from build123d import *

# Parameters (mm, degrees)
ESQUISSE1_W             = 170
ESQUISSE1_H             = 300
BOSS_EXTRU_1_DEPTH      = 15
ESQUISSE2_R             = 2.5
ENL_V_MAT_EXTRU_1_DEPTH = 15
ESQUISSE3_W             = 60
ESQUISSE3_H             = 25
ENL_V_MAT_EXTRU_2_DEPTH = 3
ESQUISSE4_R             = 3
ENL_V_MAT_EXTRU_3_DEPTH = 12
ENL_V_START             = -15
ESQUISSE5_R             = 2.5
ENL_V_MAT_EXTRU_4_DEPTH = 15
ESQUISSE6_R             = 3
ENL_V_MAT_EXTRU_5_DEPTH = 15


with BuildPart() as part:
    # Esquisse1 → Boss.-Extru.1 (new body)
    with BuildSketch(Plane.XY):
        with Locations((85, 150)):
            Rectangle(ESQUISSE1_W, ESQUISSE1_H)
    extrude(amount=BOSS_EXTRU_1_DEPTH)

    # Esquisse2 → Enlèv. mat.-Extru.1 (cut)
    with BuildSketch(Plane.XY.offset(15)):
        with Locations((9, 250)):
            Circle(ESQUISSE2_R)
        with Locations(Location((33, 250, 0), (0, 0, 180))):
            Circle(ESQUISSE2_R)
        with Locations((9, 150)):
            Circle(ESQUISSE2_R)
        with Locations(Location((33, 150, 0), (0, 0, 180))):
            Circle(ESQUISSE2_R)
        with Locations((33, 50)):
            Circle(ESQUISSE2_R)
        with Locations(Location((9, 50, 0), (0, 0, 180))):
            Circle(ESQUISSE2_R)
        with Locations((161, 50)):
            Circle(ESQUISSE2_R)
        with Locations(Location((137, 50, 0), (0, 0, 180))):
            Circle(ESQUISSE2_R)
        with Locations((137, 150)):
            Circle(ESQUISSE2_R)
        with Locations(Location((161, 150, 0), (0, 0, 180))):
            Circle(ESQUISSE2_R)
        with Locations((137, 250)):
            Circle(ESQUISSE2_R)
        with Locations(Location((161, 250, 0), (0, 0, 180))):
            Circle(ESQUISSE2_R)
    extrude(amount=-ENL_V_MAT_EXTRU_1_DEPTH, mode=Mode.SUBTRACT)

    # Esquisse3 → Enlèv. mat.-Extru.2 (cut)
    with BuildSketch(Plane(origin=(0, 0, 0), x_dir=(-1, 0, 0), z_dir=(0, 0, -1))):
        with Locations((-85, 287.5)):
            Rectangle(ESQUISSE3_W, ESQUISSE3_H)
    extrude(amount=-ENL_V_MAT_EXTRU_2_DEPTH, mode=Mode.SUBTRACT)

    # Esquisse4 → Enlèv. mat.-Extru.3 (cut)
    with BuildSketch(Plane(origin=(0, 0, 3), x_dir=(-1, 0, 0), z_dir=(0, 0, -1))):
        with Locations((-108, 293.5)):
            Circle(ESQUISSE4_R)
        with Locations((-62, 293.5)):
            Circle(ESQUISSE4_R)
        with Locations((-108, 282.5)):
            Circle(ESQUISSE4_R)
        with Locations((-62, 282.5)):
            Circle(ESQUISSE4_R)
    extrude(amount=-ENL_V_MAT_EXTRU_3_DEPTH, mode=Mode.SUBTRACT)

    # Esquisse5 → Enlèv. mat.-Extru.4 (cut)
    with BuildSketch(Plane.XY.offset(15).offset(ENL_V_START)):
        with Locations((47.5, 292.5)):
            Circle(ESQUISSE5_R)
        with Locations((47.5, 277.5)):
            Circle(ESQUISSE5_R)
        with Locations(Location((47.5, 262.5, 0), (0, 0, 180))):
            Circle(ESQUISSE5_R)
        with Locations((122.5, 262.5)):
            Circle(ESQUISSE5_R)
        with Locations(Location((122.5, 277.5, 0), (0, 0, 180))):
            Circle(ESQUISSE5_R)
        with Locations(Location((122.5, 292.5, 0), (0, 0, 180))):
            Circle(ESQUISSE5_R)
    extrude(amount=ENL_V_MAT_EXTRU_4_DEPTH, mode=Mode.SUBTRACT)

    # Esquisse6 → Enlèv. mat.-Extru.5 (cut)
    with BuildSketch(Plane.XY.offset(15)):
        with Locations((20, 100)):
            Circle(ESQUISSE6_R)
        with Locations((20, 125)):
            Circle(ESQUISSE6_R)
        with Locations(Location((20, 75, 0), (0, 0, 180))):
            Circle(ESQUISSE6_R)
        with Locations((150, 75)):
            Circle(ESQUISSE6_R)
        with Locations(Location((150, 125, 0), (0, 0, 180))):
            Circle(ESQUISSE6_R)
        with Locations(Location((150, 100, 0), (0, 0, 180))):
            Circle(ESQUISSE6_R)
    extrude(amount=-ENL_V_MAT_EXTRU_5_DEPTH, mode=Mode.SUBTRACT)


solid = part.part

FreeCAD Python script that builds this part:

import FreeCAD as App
import Part
import Sketcher
from FreeCAD import Vector


def add_polygon(sketch, points):
    """Adds a closed chain of lines whose ends are joined by coincident constraints."""
    first, n = sketch.GeometryCount, len(points)
    for a, b in zip(points, points[1:] + points[:1]):
        sketch.addGeometry(Part.LineSegment(App.Vector(*a, 0), App.Vector(*b, 0)), False)
    for i in range(n):
        sketch.addConstraint(Sketcher.Constraint("Coincident", first + i, 2, first + (i + 1) % n, 1))

doc = App.newDocument("Part")
params = doc.addObject("Spreadsheet::Sheet", "Params")
for row, (alias, value) in enumerate([
    ("sketch1_width", "170 mm"),
    ("sketch1_height", "300 mm"),
    ("pad1_length", "15 mm"),
    ("sketch2_diameter", "5 mm"),
    ("pocket1_length", "15 mm"),
    ("sketch3_width", "60 mm"),
    ("sketch3_height", "25 mm"),
    ("pocket2_length", "3 mm"),
    ("sketch4_diameter", "6 mm"),
    ("pocket3_length", "12 mm"),
    ("sketch5_diameter", "5 mm"),
    ("pocket4_length", "15 mm"),
    ("sketch6_diameter", "6 mm"),
    ("pocket5_length", "15 mm"),
], start=1):
    params.set(f"A{row}", alias)
    params.set(f"B{row}", "=" + value)
    params.setAlias(f"B{row}", alias)

body = doc.addObject("PartDesign::Body", "Body")

# Sketch on XY plane
sketch1 = doc.addObject("Sketcher::SketchObject", "Sketch")
body.addObject(sketch1)
sketch1.AttachmentSupport = (doc.XY_Plane, [""])
sketch1.MapMode = "FlatFace"
add_polygon(sketch1, [(0, 300), (0, 0), (170, 0), (170, 300)])  # lines 0-3
sketch1.addConstraint([
    Sketcher.Constraint("Vertical", 0),
    Sketcher.Constraint("Horizontal", 1),
    Sketcher.Constraint("Vertical", 2),
    Sketcher.Constraint("Horizontal", 3),
    Sketcher.Constraint("Coincident", 0, 2, -1, 1),
    Sketcher.Constraint("DistanceX", 1, 1, 1, 2, 170.0),
    Sketcher.Constraint("DistanceY", 0, 2, 0, 1, 300.0),
])
sketch1.setExpression("Constraints[9]", "Params.sketch1_width")
sketch1.setExpression("Constraints[10]", "Params.sketch1_height")
pad1 = doc.addObject("PartDesign::Pad", "Pad")
body.addObject(pad1)
pad1.Profile = sketch1
pad1.setExpression("Length", "Params.pad1_length")

# Sketch on XY plane
sketch2 = doc.addObject("Sketcher::SketchObject", "Sketch001")
body.addObject(sketch2)
sketch2.AttachmentSupport = (doc.XY_Plane, [""])
sketch2.MapMode = "FlatFace"
sketch2.AttachmentOffset = App.Placement(Vector(0, 0, 15), App.Rotation())
sketch2.addGeometry([
    Part.Circle(Vector(9, 250, 0), Vector(0, 0, 1), 2.5),  # 0
    Part.Circle(Vector(33, 250, 0), Vector(0, 0, 1), 2.5),  # 1
    Part.Circle(Vector(9, 150, 0), Vector(0, 0, 1), 2.5),  # 2
    Part.Circle(Vector(33, 150, 0), Vector(0, 0, 1), 2.5),  # 3
    Part.Circle(Vector(33, 50, 0), Vector(0, 0, 1), 2.5),  # 4
    Part.Circle(Vector(9, 50, 0), Vector(0, 0, 1), 2.5),  # 5
    Part.Circle(Vector(161, 50, 0), Vector(0, 0, 1), 2.5),  # 6
    Part.Circle(Vector(137, 50, 0), Vector(0, 0, 1), 2.5),  # 7
    Part.Circle(Vector(137, 150, 0), Vector(0, 0, 1), 2.5),  # 8
    Part.Circle(Vector(161, 150, 0), Vector(0, 0, 1), 2.5),  # 9
    Part.Circle(Vector(137, 250, 0), Vector(0, 0, 1), 2.5),  # 10
    Part.Circle(Vector(161, 250, 0), Vector(0, 0, 1), 2.5),  # 11
], False)
sketch2.addConstraint([
    Sketcher.Constraint("Equal", 0, 1),
    Sketcher.Constraint("Equal", 1, 2),
    Sketcher.Constraint("Equal", 2, 3),
    Sketcher.Constraint("Equal", 3, 4),
    Sketcher.Constraint("Equal", 4, 5),
    Sketcher.Constraint("Equal", 5, 6),
    Sketcher.Constraint("Equal", 6, 7),
    Sketcher.Constraint("Equal", 7, 8),
    Sketcher.Constraint("Equal", 8, 9),
    Sketcher.Constraint("Equal", 9, 10),
    Sketcher.Constraint("Equal", 10, 11),
    Sketcher.Constraint("Horizontal", 0, 3, 1, 3),
    Sketcher.Constraint("Horizontal", 2, 3, 3, 3),
    Sketcher.Constraint("Horizontal", 4, 3, 5, 3),
    Sketcher.Constraint("Horizontal", 5, 3, 6, 3),
    Sketcher.Constraint("Horizontal", 6, 3, 7, 3),
    Sketcher.Constraint("Horizontal", 3, 3, 8, 3),
    Sketcher.Constraint("Horizontal", 8, 3, 9, 3),
    Sketcher.Constraint("Horizontal", 1, 3, 10, 3),
    Sketcher.Constraint("Horizontal", 10, 3, 11, 3),
    Sketcher.Constraint("Vertical", 0, 3, 2, 3),
    Sketcher.Constraint("Vertical", 1, 3, 3, 3),
    Sketcher.Constraint("Vertical", 3, 3, 4, 3),
    Sketcher.Constraint("Vertical", 2, 3, 5, 3),
    Sketcher.Constraint("Vertical", 7, 3, 8, 3),
    Sketcher.Constraint("Vertical", 6, 3, 9, 3),
    Sketcher.Constraint("Vertical", 8, 3, 10, 3),
    Sketcher.Constraint("Vertical", 9, 3, 11, 3),
    Sketcher.Constraint("Diameter", 0, 5.0),
    Sketcher.Constraint("DistanceX", -1, 1, 0, 3, 9.0),
    Sketcher.Constraint("DistanceY", -1, 1, 0, 3, 250.0),
    Sketcher.Constraint("DistanceX", -1, 1, 1, 3, 33.0),
    Sketcher.Constraint("DistanceY", -1, 1, 2, 3, 150.0),
    Sketcher.Constraint("DistanceY", -1, 1, 4, 3, 50.0),
    Sketcher.Constraint("DistanceX", -1, 1, 6, 3, 161.0),
    Sketcher.Constraint("DistanceX", -1, 1, 7, 3, 137.0),
])
sketch2.setExpression("Constraints[28]", "Params.sketch2_diameter")
pocket1 = doc.addObject("PartDesign::Pocket", "Pocket")
body.addObject(pocket1)
pocket1.Profile = sketch2
pocket1.setExpression("Length", "Params.pocket1_length")

# Sketch on XY plane
sketch3 = doc.addObject("Sketcher::SketchObject", "Sketch002")
body.addObject(sketch3)
sketch3.AttachmentSupport = (doc.XY_Plane, [""])
sketch3.MapMode = "FlatFace"
add_polygon(sketch3, [(115, 300), (115, 275), (55, 275), (55, 300)])  # lines 0-3
sketch3.addConstraint([
    Sketcher.Constraint("Vertical", 0),
    Sketcher.Constraint("Horizontal", 1),
    Sketcher.Constraint("Vertical", 2),
    Sketcher.Constraint("Horizontal", 3),
    Sketcher.Constraint("DistanceX", 1, 2, 1, 1, 60.0),
    Sketcher.Constraint("DistanceY", 0, 2, 0, 1, 25.0),
    Sketcher.Constraint("DistanceX", -1, 1, 0, 2, 115.0),
    Sketcher.Constraint("DistanceY", -1, 1, 0, 2, 275.0),
])
sketch3.setExpression("Constraints[8]", "Params.sketch3_width")
sketch3.setExpression("Constraints[9]", "Params.sketch3_height")
pocket2 = doc.addObject("PartDesign::Pocket", "Pocket001")
body.addObject(pocket2)
pocket2.Profile = sketch3
pocket2.setExpression("Length", "Params.pocket2_length")
pocket2.Reversed = True

# Sketch on XY plane
sketch4 = doc.addObject("Sketcher::SketchObject", "Sketch003")
body.addObject(sketch4)
sketch4.AttachmentSupport = (doc.XY_Plane, [""])
sketch4.MapMode = "FlatFace"
sketch4.AttachmentOffset = App.Placement(Vector(0, 0, 3), App.Rotation())
sketch4.addGeometry([
    Part.Circle(Vector(108, 293.5, 0), Vector(0, 0, 1), 3),
    Part.Circle(Vector(62, 293.5, 0), Vector(0, 0, 1), 3),
    Part.Circle(Vector(108, 282.5, 0), Vector(0, 0, 1), 3),
    Part.Circle(Vector(62, 282.5, 0), Vector(0, 0, 1), 3),
], False)
sketch4.addConstraint([
    Sketcher.Constraint("Equal", 0, 1),
    Sketcher.Constraint("Equal", 1, 2),
    Sketcher.Constraint("Equal", 2, 3),
    Sketcher.Constraint("Horizontal", 0, 3, 1, 3),
    Sketcher.Constraint("Horizontal", 2, 3, 3, 3),
    Sketcher.Constraint("Vertical", 0, 3, 2, 3),
    Sketcher.Constraint("Vertical", 1, 3, 3, 3),
    Sketcher.Constraint("Diameter", 0, 6.0),
    Sketcher.Constraint("DistanceX", -1, 1, 0, 3, 108.0),
    Sketcher.Constraint("DistanceX", -1, 1, 1, 3, 62.0),
    Sketcher.Constraint("DistanceY", 2, 3, 0, 3, 11.0),
    Sketcher.Constraint("DistanceY", -1, 1, 0, 3, 293.5),
])
sketch4.setExpression("Constraints[7]", "Params.sketch4_diameter")
pocket3 = doc.addObject("PartDesign::Pocket", "Pocket002")
body.addObject(pocket3)
pocket3.Profile = sketch4
pocket3.setExpression("Length", "Params.pocket3_length")
pocket3.Reversed = True

# Sketch on XY plane
sketch5 = doc.addObject("Sketcher::SketchObject", "Sketch004")
body.addObject(sketch5)
sketch5.AttachmentSupport = (doc.XY_Plane, [""])
sketch5.MapMode = "FlatFace"
sketch5.addGeometry([
    Part.Circle(Vector(47.5, 292.5, 0), Vector(0, 0, 1), 2.5),  # 0
    Part.Circle(Vector(47.5, 277.5, 0), Vector(0, 0, 1), 2.5),  # 1
    Part.Circle(Vector(47.5, 262.5, 0), Vector(0, 0, 1), 2.5),  # 2
    Part.Circle(Vector(122.5, 262.5, 0), Vector(0, 0, 1), 2.5),  # 3
    Part.Circle(Vector(122.5, 277.5, 0), Vector(0, 0, 1), 2.5),  # 4
    Part.Circle(Vector(122.5, 292.5, 0), Vector(0, 0, 1), 2.5),  # 5
], False)
sketch5.addConstraint([
    Sketcher.Constraint("Equal", 0, 1),
    Sketcher.Constraint("Equal", 1, 2),
    Sketcher.Constraint("Equal", 2, 3),
    Sketcher.Constraint("Equal", 3, 4),
    Sketcher.Constraint("Equal", 4, 5),
    Sketcher.Constraint("Horizontal", 2, 3, 3, 3),
    Sketcher.Constraint("Horizontal", 1, 3, 4, 3),
    Sketcher.Constraint("Horizontal", 0, 3, 5, 3),
    Sketcher.Constraint("Vertical", 0, 3, 1, 3),
    Sketcher.Constraint("Vertical", 1, 3, 2, 3),
    Sketcher.Constraint("Vertical", 3, 3, 4, 3),
    Sketcher.Constraint("Vertical", 4, 3, 5, 3),
    Sketcher.Constraint("Diameter", 0, 5.0),
    Sketcher.Constraint("DistanceY", 1, 3, 0, 3, 15.0),
    Sketcher.Constraint("DistanceY", 2, 3, 1, 3, 15.0),
    Sketcher.Constraint("DistanceX", 2, 3, 3, 3, 75.0),
    Sketcher.Constraint("DistanceX", -1, 1, 0, 3, 47.5),
    Sketcher.Constraint("DistanceY", -1, 1, 0, 3, 292.5),
])
sketch5.setExpression("Constraints[12]", "Params.sketch5_diameter")
pocket4 = doc.addObject("PartDesign::Pocket", "Pocket003")
body.addObject(pocket4)
pocket4.Profile = sketch5
pocket4.setExpression("Length", "Params.pocket4_length")
pocket4.Reversed = True

# Sketch on XY plane
sketch6 = doc.addObject("Sketcher::SketchObject", "Sketch005")
body.addObject(sketch6)
sketch6.AttachmentSupport = (doc.XY_Plane, [""])
sketch6.MapMode = "FlatFace"
sketch6.AttachmentOffset = App.Placement(Vector(0, 0, 15), App.Rotation())
sketch6.addGeometry([
    Part.Circle(Vector(20, 100, 0), Vector(0, 0, 1), 3),  # 0
    Part.Circle(Vector(20, 125, 0), Vector(0, 0, 1), 3),  # 1
    Part.Circle(Vector(20, 75, 0), Vector(0, 0, 1), 3),  # 2
    Part.Circle(Vector(150, 75, 0), Vector(0, 0, 1), 3),  # 3
    Part.Circle(Vector(150, 125, 0), Vector(0, 0, 1), 3),  # 4
    Part.Circle(Vector(150, 100, 0), Vector(0, 0, 1), 3),  # 5
], False)
sketch6.addConstraint([
    Sketcher.Constraint("Equal", 0, 1),
    Sketcher.Constraint("Equal", 1, 2),
    Sketcher.Constraint("Equal", 2, 3),
    Sketcher.Constraint("Equal", 3, 4),
    Sketcher.Constraint("Equal", 4, 5),
    Sketcher.Constraint("Horizontal", 2, 3, 3, 3),
    Sketcher.Constraint("Horizontal", 1, 3, 4, 3),
    Sketcher.Constraint("Horizontal", 0, 3, 5, 3),
    Sketcher.Constraint("Vertical", 0, 3, 1, 3),
    Sketcher.Constraint("Vertical", 1, 3, 2, 3),
    Sketcher.Constraint("Vertical", 3, 3, 4, 3),
    Sketcher.Constraint("Vertical", 4, 3, 5, 3),
    Sketcher.Constraint("Diameter", 0, 6.0),
    Sketcher.Constraint("DistanceX", -1, 1, 0, 3, 20.0),
    Sketcher.Constraint("DistanceY", -1, 1, 0, 3, 100.0),
    Sketcher.Constraint("DistanceY", -1, 1, 1, 3, 125.0),
    Sketcher.Constraint("DistanceY", -1, 1, 2, 3, 75.0),
    Sketcher.Constraint("DistanceX", -1, 1, 3, 3, 150.0),
])
sketch6.setExpression("Constraints[12]", "Params.sketch6_diameter")
pocket5 = doc.addObject("PartDesign::Pocket", "Pocket004")
body.addObject(pocket5)
pocket5.Profile = sketch6
pocket5.setExpression("Length", "Params.pocket5_length")

doc.recompute()
